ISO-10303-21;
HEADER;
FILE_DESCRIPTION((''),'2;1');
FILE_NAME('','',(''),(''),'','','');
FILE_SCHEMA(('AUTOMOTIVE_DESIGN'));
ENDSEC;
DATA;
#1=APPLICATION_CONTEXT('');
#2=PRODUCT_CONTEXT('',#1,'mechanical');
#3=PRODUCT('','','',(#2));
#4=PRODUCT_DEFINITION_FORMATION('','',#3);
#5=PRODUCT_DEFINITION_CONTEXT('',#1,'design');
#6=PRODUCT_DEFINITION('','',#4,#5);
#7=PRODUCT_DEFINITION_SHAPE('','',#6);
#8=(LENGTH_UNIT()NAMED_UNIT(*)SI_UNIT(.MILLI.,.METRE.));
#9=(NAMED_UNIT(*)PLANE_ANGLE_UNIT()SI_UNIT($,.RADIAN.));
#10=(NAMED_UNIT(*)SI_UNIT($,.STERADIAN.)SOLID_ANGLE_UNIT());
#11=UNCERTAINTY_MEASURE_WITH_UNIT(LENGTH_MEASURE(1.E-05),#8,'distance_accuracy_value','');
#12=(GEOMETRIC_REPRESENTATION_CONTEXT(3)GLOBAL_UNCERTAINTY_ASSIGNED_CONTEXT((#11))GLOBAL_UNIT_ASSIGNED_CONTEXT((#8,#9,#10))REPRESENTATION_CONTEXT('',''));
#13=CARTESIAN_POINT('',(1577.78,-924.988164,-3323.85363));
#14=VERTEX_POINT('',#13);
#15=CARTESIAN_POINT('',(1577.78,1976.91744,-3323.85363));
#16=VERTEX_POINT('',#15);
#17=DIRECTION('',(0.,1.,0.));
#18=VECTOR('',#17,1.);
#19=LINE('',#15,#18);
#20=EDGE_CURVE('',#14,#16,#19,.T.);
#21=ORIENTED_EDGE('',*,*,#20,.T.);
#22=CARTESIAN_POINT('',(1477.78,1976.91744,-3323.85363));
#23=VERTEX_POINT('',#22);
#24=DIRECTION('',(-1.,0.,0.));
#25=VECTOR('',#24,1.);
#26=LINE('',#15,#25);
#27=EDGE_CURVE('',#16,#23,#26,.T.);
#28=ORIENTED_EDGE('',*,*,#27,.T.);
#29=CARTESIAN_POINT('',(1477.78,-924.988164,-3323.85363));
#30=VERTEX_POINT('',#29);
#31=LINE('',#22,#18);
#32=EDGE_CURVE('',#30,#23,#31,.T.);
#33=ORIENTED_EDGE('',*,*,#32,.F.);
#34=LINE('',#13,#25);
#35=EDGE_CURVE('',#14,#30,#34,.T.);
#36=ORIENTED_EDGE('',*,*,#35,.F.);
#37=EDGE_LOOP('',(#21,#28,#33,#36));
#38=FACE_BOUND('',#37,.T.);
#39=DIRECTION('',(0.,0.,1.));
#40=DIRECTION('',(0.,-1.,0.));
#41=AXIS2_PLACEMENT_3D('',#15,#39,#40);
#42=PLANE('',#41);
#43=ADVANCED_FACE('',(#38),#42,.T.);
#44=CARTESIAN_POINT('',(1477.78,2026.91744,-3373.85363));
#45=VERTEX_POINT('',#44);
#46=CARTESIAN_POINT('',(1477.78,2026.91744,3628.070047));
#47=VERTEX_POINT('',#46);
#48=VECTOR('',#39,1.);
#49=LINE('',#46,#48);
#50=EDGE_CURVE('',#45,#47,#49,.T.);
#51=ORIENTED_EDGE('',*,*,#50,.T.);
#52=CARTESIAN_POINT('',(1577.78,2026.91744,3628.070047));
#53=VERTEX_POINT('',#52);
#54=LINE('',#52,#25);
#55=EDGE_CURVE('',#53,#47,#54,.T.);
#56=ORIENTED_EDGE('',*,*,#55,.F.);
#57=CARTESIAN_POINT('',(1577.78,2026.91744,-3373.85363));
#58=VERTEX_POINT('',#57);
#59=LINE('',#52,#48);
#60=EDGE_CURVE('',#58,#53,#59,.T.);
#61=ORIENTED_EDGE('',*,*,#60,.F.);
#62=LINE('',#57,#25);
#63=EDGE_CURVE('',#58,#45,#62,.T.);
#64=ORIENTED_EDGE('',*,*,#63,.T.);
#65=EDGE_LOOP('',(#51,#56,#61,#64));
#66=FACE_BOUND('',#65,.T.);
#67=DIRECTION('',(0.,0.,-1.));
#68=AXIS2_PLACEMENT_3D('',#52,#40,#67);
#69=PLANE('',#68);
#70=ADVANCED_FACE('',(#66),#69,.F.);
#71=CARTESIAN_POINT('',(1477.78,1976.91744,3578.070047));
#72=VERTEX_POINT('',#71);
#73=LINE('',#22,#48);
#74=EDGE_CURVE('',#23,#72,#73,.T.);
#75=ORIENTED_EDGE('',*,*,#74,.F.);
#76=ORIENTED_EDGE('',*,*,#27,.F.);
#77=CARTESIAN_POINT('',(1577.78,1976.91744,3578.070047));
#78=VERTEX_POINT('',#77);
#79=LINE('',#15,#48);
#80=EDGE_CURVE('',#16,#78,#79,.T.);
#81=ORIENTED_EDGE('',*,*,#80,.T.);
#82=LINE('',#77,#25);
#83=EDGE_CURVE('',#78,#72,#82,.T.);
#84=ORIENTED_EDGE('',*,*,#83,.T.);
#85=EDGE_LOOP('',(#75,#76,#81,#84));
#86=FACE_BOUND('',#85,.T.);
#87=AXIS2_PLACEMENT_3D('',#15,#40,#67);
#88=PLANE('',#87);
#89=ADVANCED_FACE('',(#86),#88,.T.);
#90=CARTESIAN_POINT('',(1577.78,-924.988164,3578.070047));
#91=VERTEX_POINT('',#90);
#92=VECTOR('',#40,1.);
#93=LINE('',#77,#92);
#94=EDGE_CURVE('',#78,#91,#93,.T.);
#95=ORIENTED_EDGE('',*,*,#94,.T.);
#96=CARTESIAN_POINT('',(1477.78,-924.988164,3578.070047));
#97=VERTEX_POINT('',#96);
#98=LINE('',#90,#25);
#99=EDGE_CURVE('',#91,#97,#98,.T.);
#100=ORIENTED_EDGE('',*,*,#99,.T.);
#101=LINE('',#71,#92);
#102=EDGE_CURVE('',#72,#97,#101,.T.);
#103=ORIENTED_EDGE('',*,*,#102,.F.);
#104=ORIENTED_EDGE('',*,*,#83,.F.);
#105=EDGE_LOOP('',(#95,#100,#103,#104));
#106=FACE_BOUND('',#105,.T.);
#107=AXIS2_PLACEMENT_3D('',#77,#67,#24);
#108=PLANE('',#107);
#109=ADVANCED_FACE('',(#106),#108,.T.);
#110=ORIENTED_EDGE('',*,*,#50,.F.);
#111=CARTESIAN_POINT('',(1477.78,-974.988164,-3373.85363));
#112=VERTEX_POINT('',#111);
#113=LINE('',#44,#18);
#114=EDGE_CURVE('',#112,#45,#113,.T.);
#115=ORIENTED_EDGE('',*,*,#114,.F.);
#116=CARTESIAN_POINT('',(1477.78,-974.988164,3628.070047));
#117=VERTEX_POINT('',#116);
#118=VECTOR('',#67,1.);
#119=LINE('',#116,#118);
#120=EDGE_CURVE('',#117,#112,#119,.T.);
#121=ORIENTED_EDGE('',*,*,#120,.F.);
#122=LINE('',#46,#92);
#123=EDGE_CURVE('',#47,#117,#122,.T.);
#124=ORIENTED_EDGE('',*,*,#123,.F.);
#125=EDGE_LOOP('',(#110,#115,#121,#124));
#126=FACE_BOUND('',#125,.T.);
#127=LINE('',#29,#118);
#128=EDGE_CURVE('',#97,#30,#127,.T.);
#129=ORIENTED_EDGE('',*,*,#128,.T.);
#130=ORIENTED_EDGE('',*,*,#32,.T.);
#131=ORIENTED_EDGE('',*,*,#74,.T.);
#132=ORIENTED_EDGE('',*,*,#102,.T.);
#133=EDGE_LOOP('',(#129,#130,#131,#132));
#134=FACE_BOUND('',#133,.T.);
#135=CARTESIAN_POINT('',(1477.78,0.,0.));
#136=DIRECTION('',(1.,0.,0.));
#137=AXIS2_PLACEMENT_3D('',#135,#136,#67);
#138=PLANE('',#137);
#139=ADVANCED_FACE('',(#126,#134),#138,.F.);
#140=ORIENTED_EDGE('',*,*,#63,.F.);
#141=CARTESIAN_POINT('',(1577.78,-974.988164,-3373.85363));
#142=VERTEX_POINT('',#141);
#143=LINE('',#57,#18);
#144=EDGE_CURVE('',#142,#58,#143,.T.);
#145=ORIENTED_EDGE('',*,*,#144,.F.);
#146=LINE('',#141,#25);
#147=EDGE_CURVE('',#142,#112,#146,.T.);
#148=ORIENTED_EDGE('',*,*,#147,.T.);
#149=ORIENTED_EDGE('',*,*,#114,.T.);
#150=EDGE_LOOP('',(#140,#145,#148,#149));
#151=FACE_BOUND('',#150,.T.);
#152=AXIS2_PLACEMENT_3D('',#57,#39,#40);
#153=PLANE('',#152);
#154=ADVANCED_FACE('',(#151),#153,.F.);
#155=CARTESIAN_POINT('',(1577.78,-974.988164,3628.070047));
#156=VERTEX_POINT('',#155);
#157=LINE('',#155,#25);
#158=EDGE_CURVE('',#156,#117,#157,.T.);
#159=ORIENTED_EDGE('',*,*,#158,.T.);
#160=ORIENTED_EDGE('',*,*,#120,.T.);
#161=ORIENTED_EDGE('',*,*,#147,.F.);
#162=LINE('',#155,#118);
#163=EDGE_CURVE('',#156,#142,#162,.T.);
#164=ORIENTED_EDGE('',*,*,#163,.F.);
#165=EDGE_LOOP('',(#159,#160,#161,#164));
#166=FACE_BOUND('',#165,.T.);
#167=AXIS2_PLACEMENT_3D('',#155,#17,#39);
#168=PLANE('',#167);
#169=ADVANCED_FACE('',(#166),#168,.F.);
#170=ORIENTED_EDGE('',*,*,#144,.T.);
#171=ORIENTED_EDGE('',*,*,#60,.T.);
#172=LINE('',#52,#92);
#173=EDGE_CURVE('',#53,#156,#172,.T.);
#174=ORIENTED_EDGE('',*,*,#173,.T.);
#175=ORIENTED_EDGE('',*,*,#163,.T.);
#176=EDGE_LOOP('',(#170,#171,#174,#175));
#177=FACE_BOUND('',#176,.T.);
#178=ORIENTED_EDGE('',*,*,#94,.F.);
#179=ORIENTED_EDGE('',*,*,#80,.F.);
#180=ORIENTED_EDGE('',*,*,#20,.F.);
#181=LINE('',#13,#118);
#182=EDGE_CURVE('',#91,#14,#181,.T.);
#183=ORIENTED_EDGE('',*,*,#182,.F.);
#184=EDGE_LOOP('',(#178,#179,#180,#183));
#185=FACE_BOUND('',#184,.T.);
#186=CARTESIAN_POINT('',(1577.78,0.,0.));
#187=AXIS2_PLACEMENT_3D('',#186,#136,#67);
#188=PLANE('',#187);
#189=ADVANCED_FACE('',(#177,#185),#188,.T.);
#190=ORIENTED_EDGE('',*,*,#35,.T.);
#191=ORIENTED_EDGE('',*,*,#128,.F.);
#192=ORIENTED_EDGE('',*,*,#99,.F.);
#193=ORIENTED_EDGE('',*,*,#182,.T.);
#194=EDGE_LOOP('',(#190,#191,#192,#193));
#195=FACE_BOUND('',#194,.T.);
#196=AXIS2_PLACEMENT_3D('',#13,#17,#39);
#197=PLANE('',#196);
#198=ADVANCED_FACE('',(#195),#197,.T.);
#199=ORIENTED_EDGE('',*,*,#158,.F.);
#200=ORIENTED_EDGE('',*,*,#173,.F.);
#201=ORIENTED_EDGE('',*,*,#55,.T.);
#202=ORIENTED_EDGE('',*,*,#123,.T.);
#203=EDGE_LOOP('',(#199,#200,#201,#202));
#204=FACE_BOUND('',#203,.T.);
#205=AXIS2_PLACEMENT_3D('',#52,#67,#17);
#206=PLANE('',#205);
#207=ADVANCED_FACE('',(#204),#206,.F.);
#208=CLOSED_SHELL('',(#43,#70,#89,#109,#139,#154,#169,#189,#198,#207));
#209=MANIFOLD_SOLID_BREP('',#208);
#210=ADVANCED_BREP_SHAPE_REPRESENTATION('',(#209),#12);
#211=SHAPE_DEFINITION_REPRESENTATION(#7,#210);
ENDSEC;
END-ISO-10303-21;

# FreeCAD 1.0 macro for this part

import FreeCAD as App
import Part
import Sketcher
from FreeCAD import Vector


def add_polygon(sketch, points):
    """Adds a closed chain of lines whose ends are joined by coincident constraints."""
    first, n = sketch.GeometryCount, len(points)
    for a, b in zip(points, points[1:] + points[:1]):
        sketch.addGeometry(Part.LineSegment(App.Vector(*a, 0), App.Vector(*b, 0)), False)
    for i in range(n):
        sketch.addConstraint(Sketcher.Constraint("Coincident", first + i, 2, first + (i + 1) % n, 1))

doc = App.newDocument("Part")
body = doc.addObject("PartDesign::Body", "Body")

sketch1 = body.newObject("Sketcher::SketchObject", "Sketch")
sketch1.AttachmentSupport = (doc.getObject("YZ_Plane"), [""])
sketch1.MapMode = "FlatFace"
sketch1.AttachmentOffset = App.Placement(Vector(0, 0, 1477.78), App.Rotation())
add_polygon(sketch1, [(2027, 3628), (-975, 3628), (-975, -3374), (2027, -3374)])
add_polygon(sketch1, [(-925, -3324), (-925, 3578), (1977, 3578), (1977, -3324)])
sketch1.addConstraint([
    Sketcher.Constraint("Horizontal", 0),
    Sketcher.Constraint("Vertical", 1),
    Sketcher.Constraint("Horizontal", 2),
    Sketcher.Constraint("Vertical", 3),
    Sketcher.Constraint("Vertical", 4),
    Sketcher.Constraint("Horizontal", 5),
    Sketcher.Constraint("Vertical", 6),
    Sketcher.Constraint("Horizontal", 7),
    Sketcher.Constraint("DistanceX", 0, 2, 4, 2, 50.0),
    Sketcher.Constraint("DistanceY", 4, 2, 0, 2, 50.0),
    Sketcher.Constraint("DistanceX", 5, 2, 3, 2, 50.0),
    Sketcher.Constraint("DistanceY", 2, 2, 6, 2, 50.0),
    Sketcher.Constraint("DistanceX", 0, 2, 0, 1, 3001.905604),
    Sketcher.Constraint("DistanceY", 1, 2, 1, 1, 7001.923677),
    Sketcher.Constraint("DistanceY", 1, 2, -1, 1, 3373.85363),
    Sketcher.Constraint("DistanceX", -1, 1, 2, 2, 2026.91744),
])
pad1 = body.newObject("PartDesign::Pad", "Pad")
pad1.Profile = sketch1
pad1.Length = 100

doc.recompute()
